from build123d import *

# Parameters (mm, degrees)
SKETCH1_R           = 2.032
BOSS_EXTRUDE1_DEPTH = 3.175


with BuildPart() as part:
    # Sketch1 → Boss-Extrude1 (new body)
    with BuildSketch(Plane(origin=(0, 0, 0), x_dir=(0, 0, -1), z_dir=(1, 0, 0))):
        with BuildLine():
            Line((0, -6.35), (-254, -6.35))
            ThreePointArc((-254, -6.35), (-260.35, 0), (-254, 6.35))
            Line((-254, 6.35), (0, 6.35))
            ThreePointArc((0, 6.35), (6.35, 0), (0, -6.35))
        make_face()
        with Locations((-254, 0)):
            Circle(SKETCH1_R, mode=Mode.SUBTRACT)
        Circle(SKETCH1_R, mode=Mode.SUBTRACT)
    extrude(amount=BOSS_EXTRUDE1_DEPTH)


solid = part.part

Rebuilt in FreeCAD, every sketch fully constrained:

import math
import FreeCAD as App
import Part
import Sketcher

V = App.Vector
Q = App.Units.Quantity

doc = App.newDocument("Part")
params = doc.addObject("Spreadsheet::Sheet", "Params")
for row, (alias, value) in enumerate([
    ("sketch1_diameter", "0.16 in"),
    ("sketch1_height", "10 in"),
    ("sketch1_radius", "0.25 in"),
    ("pad1_length", "0.125 in"),
], start=1):
    params.set(f"A{row}", alias)
    params.set(f"B{row}", "=" + value)
    params.setAlias(f"B{row}", alias)

body = doc.addObject("PartDesign::Body", "Body")

sketch1 = doc.addObject("Sketcher::SketchObject", "Sketch")
body.addObject(sketch1)
sketch1.AttachmentSupport = (doc.YZ_Plane, [""])
sketch1.MapMode = "FlatFace"
sketch1.addGeometry([
    Part.LineSegment(V(-6.3, 254, 0), V(-6.3, 0, 0)),
    Part.ArcOfCircle(Part.Circle(V(0, 0, 0), V(0, 0, 1), 6.3), math.radians(180), math.radians(360)),
    Part.LineSegment(V(6.3, 0, 0), V(6.3, 254, 0)),
    Part.ArcOfCircle(Part.Circle(V(0, 254, 0), V(0, 0, 1), 6.3), math.radians(0), math.radians(180)),
    Part.Circle(V(0, 0, 0), V(0, 0, 1), 2),
    Part.Circle(V(0, 254, 0), V(0, 0, 1), 2),
], False)
sketch1.addConstraint([
    Sketcher.Constraint("Tangent", 0, 2, 1, 1),
    Sketcher.Constraint("Tangent", 1, 2, 2, 1),
    Sketcher.Constraint("Tangent", 2, 2, 3, 1),
    Sketcher.Constraint("Tangent", 3, 2, 0, 1),
    Sketcher.Constraint("Vertical", 0),
    Sketcher.Constraint("Vertical", 2),
    Sketcher.Constraint("Coincident", 1, 3, -1, 1),
    Sketcher.Constraint("Coincident", 4, 3, -1, 1),
    Sketcher.Constraint("Coincident", 5, 3, 3, 3),
    Sketcher.Constraint("Equal", 4, 5),
    Sketcher.Constraint("Diameter", 4, Q("0.16 in")),
    Sketcher.Constraint("DistanceY", 0, 2, 0, 1, Q("10 in")),
    Sketcher.Constraint("Radius", 1, Q("0.25 in")),
])
sketch1.setExpression("Constraints[10]", "Params.sketch1_diameter")
sketch1.setExpression("Constraints[11]", "Params.sketch1_height")
sketch1.setExpression("Constraints[12]", "Params.sketch1_radius")
pad1 = doc.addObject("PartDesign::Pad", "Pad")
body.addObject(pad1)
pad1.Profile = sketch1
pad1.setExpression("Length", "Params.pad1_length")

doc.recompute()
